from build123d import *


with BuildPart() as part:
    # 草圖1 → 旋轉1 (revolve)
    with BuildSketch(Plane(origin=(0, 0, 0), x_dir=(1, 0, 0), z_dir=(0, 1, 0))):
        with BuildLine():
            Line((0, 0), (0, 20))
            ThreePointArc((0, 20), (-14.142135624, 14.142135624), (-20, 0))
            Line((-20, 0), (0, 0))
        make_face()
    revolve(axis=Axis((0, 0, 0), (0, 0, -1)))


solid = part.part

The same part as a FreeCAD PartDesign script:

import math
import FreeCAD as App
import Part
import Sketcher

V = App.Vector

doc = App.newDocument("Part")
body = doc.addObject("PartDesign::Body", "Body")

# Sketch on XZ plane
sketch1 = body.newObject("Sketcher::SketchObject", "Sketch")
sketch1.AttachmentSupport = (doc.getObject("XZ_Plane"), [""])
sketch1.MapMode = "FlatFace"
sketch1.addGeometry([
    Part.LineSegment(V(0, 0, 0), V(0, -20, 0)),
    Part.ArcOfCircle(Part.Circle(V(0, 0, 0), V(0, 0, 1), 20), math.radians(180), math.radians(270)),
    Part.LineSegment(V(-20, 0, 0), V(0, 0, 0)),
], False)
sketch1.addConstraint([
    Sketcher.Constraint("Coincident", 0, 2, 1, 2),
    Sketcher.Constraint("Coincident", 1, 1, 2, 1),
    Sketcher.Constraint("Coincident", 2, 2, 0, 1),
    Sketcher.Constraint("Vertical", 0),
    Sketcher.Constraint("Horizontal", 2),
    Sketcher.Constraint("Coincident", 1, 3, -1, 1),
    Sketcher.Constraint("Coincident", 2, 2, -1, 1),
    Sketcher.Constraint("Radius", 1, 20.0),
])
revolution = body.newObject("PartDesign::Revolution", "Revolution")
revolution.Profile = sketch1
revolution.ReferenceAxis = (sketch1, ["V_Axis"])
revolution.Angle = 360

doc.recompute()
